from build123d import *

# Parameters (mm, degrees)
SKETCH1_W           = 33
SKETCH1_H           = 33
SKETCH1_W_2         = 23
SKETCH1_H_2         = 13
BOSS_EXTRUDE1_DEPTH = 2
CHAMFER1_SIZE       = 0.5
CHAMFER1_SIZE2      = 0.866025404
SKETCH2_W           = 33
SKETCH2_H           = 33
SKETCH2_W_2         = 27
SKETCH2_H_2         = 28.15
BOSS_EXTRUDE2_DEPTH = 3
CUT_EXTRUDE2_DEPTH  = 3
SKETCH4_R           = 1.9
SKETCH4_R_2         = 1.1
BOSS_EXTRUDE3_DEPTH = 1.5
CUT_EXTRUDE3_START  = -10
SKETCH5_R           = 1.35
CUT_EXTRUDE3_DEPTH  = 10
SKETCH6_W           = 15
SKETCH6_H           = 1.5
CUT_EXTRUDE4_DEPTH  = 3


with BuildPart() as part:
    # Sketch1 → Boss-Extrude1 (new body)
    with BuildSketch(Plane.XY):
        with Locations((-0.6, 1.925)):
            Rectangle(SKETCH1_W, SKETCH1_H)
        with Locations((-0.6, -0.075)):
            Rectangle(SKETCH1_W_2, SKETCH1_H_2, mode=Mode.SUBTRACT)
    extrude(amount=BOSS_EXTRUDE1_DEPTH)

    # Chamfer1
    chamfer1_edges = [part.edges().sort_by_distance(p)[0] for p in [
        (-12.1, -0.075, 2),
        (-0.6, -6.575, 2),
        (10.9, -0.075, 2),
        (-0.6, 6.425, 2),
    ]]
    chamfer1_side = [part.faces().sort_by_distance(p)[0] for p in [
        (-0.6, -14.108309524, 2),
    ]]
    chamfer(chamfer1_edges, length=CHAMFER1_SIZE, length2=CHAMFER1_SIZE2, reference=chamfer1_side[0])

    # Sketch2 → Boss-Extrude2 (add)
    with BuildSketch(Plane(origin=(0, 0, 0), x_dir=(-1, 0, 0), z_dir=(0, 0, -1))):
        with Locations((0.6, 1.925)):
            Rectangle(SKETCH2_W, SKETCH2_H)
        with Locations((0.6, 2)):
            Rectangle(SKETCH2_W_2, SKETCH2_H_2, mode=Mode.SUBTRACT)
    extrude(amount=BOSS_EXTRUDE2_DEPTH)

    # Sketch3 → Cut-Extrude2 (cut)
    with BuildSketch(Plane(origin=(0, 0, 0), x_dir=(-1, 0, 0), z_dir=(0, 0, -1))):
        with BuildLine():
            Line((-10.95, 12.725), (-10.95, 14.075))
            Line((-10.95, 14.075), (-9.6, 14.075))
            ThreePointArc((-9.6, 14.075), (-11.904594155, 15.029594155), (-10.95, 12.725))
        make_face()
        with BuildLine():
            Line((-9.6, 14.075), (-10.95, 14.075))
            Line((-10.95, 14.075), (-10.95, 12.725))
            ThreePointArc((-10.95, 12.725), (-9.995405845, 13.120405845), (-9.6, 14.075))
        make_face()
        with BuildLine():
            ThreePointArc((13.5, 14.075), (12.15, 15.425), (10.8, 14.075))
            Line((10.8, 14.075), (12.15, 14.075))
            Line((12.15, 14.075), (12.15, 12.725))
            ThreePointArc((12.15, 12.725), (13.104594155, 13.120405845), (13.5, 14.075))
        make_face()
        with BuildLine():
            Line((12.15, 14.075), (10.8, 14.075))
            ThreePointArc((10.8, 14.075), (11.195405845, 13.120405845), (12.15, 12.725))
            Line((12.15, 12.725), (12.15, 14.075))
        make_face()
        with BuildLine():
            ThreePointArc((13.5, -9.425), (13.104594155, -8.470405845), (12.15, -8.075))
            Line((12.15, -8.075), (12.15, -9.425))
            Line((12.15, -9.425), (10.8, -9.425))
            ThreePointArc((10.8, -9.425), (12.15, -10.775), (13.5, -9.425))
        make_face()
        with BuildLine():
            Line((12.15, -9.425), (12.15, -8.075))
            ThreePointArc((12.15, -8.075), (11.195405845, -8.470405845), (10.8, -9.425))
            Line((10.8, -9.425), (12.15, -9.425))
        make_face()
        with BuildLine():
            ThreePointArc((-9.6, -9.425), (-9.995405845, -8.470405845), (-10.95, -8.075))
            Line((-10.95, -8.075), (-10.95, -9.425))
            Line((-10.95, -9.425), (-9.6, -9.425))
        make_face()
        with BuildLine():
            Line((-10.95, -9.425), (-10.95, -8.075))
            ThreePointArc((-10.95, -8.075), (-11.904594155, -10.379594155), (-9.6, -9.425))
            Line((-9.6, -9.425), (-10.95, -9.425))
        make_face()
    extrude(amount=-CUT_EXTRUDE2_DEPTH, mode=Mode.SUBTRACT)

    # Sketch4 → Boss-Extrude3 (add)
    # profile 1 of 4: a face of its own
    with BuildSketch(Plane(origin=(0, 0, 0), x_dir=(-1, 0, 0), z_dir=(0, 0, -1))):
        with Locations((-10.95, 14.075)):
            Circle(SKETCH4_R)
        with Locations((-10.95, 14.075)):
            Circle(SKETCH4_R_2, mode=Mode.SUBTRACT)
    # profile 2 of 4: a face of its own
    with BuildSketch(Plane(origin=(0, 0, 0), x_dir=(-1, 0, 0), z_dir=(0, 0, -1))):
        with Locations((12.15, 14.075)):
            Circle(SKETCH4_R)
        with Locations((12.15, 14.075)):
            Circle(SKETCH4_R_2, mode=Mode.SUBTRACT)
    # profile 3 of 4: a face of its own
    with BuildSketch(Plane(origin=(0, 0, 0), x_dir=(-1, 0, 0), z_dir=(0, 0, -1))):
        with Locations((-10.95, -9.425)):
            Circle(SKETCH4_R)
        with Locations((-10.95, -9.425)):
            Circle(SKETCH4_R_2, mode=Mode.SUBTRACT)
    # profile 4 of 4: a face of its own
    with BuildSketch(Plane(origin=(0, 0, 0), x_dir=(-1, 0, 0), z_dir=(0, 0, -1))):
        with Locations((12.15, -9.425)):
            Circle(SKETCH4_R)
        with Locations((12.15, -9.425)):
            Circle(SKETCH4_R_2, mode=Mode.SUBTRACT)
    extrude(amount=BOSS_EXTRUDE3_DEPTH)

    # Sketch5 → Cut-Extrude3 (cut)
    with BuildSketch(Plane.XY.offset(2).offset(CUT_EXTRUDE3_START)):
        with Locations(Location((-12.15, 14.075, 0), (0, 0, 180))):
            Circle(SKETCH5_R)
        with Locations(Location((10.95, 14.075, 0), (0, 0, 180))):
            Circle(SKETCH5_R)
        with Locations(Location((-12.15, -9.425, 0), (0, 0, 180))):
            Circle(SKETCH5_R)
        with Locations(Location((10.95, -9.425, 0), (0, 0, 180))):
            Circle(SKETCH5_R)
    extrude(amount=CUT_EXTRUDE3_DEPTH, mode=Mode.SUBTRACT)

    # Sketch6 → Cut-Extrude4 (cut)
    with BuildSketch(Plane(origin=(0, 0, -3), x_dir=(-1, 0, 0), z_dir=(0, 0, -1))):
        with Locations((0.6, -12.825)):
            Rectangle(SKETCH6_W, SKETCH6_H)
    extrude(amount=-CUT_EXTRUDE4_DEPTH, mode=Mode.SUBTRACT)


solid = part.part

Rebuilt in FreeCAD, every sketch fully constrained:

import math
import FreeCAD as App
import Part
import Sketcher
from FreeCAD import Vector


def edges_at(feature, points):
    """Names of the edges that pass closest to the given points."""
    edges = feature.Shape.Edges
    near = lambda p: min(range(len(edges)), key=lambda i: edges[i].distToShape(Part.Vertex(*p))[0])
    return sorted({f"Edge{near(p) + 1}" for p in points})

doc = App.newDocument("Part")
body = doc.addObject("PartDesign::Body", "Body")

# Sketch on XY plane
sketch1 = body.newObject("Sketcher::SketchObject", "Sketch")
sketch1.AttachmentSupport = (doc.getObject("XY_Plane"), [""])
sketch1.MapMode = "FlatFace"
sketch1.addGeometry(Part.LineSegment(Vector(-17, 18, 0), Vector(-17, -15, 0)), False)
sketch1.addGeometry(Part.LineSegment(Vector(-17, -15, 0), Vector(16, -15, 0)), False)
sketch1.addGeometry(Part.LineSegment(Vector(16, -15, 0), Vector(16, 18, 0)), False)
sketch1.addGeometry(Part.LineSegment(Vector(16, 18, 0), Vector(-17, 18, 0)), False)
sketch1.addGeometry(Part.LineSegment(Vector(11, -7, 0), Vector(-12, -7, 0)), False)
sketch1.addGeometry(Part.LineSegment(Vector(-12, -7, 0), Vector(-12, 6, 0)), False)
sketch1.addGeometry(Part.LineSegment(Vector(-12, 6, 0), Vector(11, 6, 0)), False)
sketch1.addGeometry(Part.LineSegment(Vector(11, 6, 0), Vector(11, -7, 0)), False)
sketch1.addConstraint(Sketcher.Constraint("Coincident", 0, 2, 1, 1))
sketch1.addConstraint(Sketcher.Constraint("Coincident", 1, 2, 2, 1))
sketch1.addConstraint(Sketcher.Constraint("Coincident", 2, 2, 3, 1))
sketch1.addConstraint(Sketcher.Constraint("Coincident", 3, 2, 0, 1))
sketch1.addConstraint(Sketcher.Constraint("Coincident", 4, 2, 5, 1))
sketch1.addConstraint(Sketcher.Constraint("Coincident", 5, 2, 6, 1))
sketch1.addConstraint(Sketcher.Constraint("Coincident", 6, 2, 7, 1))
sketch1.addConstraint(Sketcher.Constraint("Coincident", 7, 2, 4, 1))
sketch1.addConstraint(Sketcher.Constraint("Vertical", 0))
sketch1.addConstraint(Sketcher.Constraint("Horizontal", 1))
sketch1.addConstraint(Sketcher.Constraint("Vertical", 2))
sketch1.addConstraint(Sketcher.Constraint("Horizontal", 3))
sketch1.addConstraint(Sketcher.Constraint("Horizontal", 4))
sketch1.addConstraint(Sketcher.Constraint("Vertical", 5))
sketch1.addConstraint(Sketcher.Constraint("Horizontal", 6))
sketch1.addConstraint(Sketcher.Constraint("Vertical", 7))
sketch1.addConstraint(Sketcher.Constraint("Equal", 3, 0))
sketch1.addConstraint(Sketcher.Constraint("DistanceX", 1, 1, 1, 2, 33.0))
sketch1.addConstraint(Sketcher.Constraint("DistanceX", 4, 2, 4, 1, 23.0))
sketch1.addConstraint(Sketcher.Constraint("DistanceY", 5, 1, 5, 2, 13.0))
sketch1.addConstraint(Sketcher.Constraint("DistanceX", 0, 2, 4, 2, 5.0))
sketch1.addConstraint(Sketcher.Constraint("DistanceY", 0, 2, 4, 2, 8.0))
sketch1.addConstraint(Sketcher.Constraint("DistanceX", 0, 2, -1, 1, 17.1))
sketch1.addConstraint(Sketcher.Constraint("DistanceY", 0, 2, -1, 1, 14.575))
pad1 = body.newObject("PartDesign::Pad", "Pad")
pad1.Profile = sketch1
pad1.Length = 2
doc.recompute()

chamfer = body.newObject("PartDesign::Chamfer", "Chamfer")
chamfer.Base = (pad1, edges_at(pad1, [
    (-12.1, -0.075, 2),
    (-0.6, -6.575, 2),
    (10.9, -0.075, 2),
    (-0.6, 6.425, 2),
]))
chamfer.ChamferType = "Two distances"
chamfer.Size = 0.5
chamfer.Size2 = 0.866025
chamfer.FlipDirection = True

# Sketch on XY plane
sketch2 = body.newObject("Sketcher::SketchObject", "Sketch001")
sketch2.AttachmentSupport = (doc.getObject("XY_Plane"), [""])
sketch2.MapMode = "FlatFace"
sketch2.addGeometry(Part.LineSegment(Vector(16, 18, 0), Vector(16, -15, 0)), False)
sketch2.addGeometry(Part.LineSegment(Vector(16, -15, 0), Vector(-17, -15, 0)), False)
sketch2.addGeometry(Part.LineSegment(Vector(-17, -15, 0), Vector(-17, 18, 0)), False)
sketch2.addGeometry(Part.LineSegment(Vector(-17, 18, 0), Vector(16, 18, 0)), False)
sketch2.addGeometry(Part.LineSegment(Vector(-14, -12, 0), Vector(13, -12, 0)), False)
sketch2.addGeometry(Part.LineSegment(Vector(13, -12, 0), Vector(13, 16, 0)), False)
sketch2.addGeometry(Part.LineSegment(Vector(13, 16, 0), Vector(-14, 16, 0)), False)
sketch2.addGeometry(Part.LineSegment(Vector(-14, 16, 0), Vector(-14, -12, 0)), False)
sketch2.addConstraint(Sketcher.Constraint("Coincident", 0, 2, 1, 1))
sketch2.addConstraint(Sketcher.Constraint("Coincident", 1, 2, 2, 1))
sketch2.addConstraint(Sketcher.Constraint("Coincident", 2, 2, 3, 1))
sketch2.addConstraint(Sketcher.Constraint("Coincident", 3, 2, 0, 1))
sketch2.addConstraint(Sketcher.Constraint("Coincident", 4, 2, 5, 1))
sketch2.addConstraint(Sketcher.Constraint("Coincident", 5, 2, 6, 1))
sketch2.addConstraint(Sketcher.Constraint("Coincident", 6, 2, 7, 1))
sketch2.addConstraint(Sketcher.Constraint("Coincident", 7, 2, 4, 1))
sketch2.addConstraint(Sketcher.Constraint("Vertical", 0))
sketch2.addConstraint(Sketcher.Constraint("Horizontal", 1))
sketch2.addConstraint(Sketcher.Constraint("Vertical", 2))
sketch2.addConstraint(Sketcher.Constraint("Horizontal", 3))
sketch2.addConstraint(Sketcher.Constraint("Horizontal", 4))
sketch2.addConstraint(Sketcher.Constraint("Vertical", 5))
sketch2.addConstraint(Sketcher.Constraint("Horizontal", 6))
sketch2.addConstraint(Sketcher.Constraint("Vertical", 7))
sketch2.addConstraint(Sketcher.Constraint("Equal", 3, 0))
sketch2.addConstraint(Sketcher.Constraint("DistanceX", 1, 2, 1, 1, 33.0))
sketch2.addConstraint(Sketcher.Constraint("DistanceX", 4, 1, 4, 2, 27.0))
sketch2.addConstraint(Sketcher.Constraint("DistanceX", 4, 2, 0, 2, 3.0))
sketch2.addConstraint(Sketcher.Constraint("DistanceY", 5, 1, 5, 2, 28.15))
sketch2.addConstraint(Sketcher.Constraint("DistanceX", -1, 1, 0, 2, 15.9))
sketch2.addConstraint(Sketcher.Constraint("DistanceY", 0, 2, 4, 2, 2.5))
sketch2.addConstraint(Sketcher.Constraint("DistanceY", 0, 2, -1, 1, 14.575))
pad2 = body.newObject("PartDesign::Pad", "Pad001")
pad2.Profile = sketch2
pad2.Length = 3
pad2.Reversed = True

# Sketch on XY plane
sketch3 = body.newObject("Sketcher::SketchObject", "Sketch002")
sketch3.AttachmentSupport = (doc.getObject("XY_Plane"), [""])
sketch3.MapMode = "FlatFace"
sketch3.addGeometry(Part.ArcOfCircle(Part.Circle(Vector(10.9, 14.1, 0), Vector(0, 0, 1), 1.4), math.radians(-90), math.radians(180)), False)
sketch3.addGeometry(Part.ArcOfCircle(Part.Circle(Vector(10.9, 14.1, 0), Vector(0, 0, 1), 1.3), math.radians(180), math.radians(270)), False)
sketch3.addGeometry(Part.ArcOfCircle(Part.Circle(Vector(-12.2, 14.1, 0), Vector(0, 0, 1), 1.4), math.radians(0), math.radians(180)), False)
sketch3.addGeometry(Part.ArcOfCircle(Part.Circle(Vector(-12.1, 14.1, 0), Vector(0, 0, 1), 1.3), math.radians(-90), math.radians(0)), False)
sketch3.addGeometry(Part.ArcOfCircle(Part.Circle(Vector(-12.2, 14.1, 0), Vector(0, 0, 1), 1.3), math.radians(180), math.radians(270)), False)
sketch3.addGeometry(Part.ArcOfCircle(Part.Circle(Vector(-12.2, -9.4, 0), Vector(0, 0, 1), 1.3), math.radians(90), math.radians(180)), False)
sketch3.addGeometry(Part.ArcOfCircle(Part.Circle(Vector(-12.1, -9.4, 0), Vector(0, 0, 1), 1.3), math.radians(0), math.radians(90)), False)
sketch3.addGeometry(Part.ArcOfCircle(Part.Circle(Vector(-12.2, -9.4, 0), Vector(0, 0, 1), 1.4), math.radians(180), math.radians(360)), False)
sketch3.addGeometry(Part.ArcOfCircle(Part.Circle(Vector(10.9, -9.4, 0), Vector(0, 0, 1), 1.3), math.radians(90), math.radians(180)), False)
sketch3.addGeometry(Part.ArcOfCircle(Part.Circle(Vector(10.9, -9.4, 0), Vector(0, 0, 1), 1.4), math.radians(180), math.radians(450)), False)
sketch3.addConstraint(Sketcher.Constraint("Tangent", 0, 1, 1, 2))
sketch3.addConstraint(Sketcher.Constraint("Coincident", 1, 1, 0, 2))
sketch3.addConstraint(Sketcher.Constraint("Tangent", 2, 1, 3, 2))
sketch3.addConstraint(Sketcher.Constraint("Tangent", 3, 1, 4, 2))
sketch3.addConstraint(Sketcher.Constraint("Tangent", 4, 1, 2, 2))
sketch3.addConstraint(Sketcher.Constraint("Tangent", 5, 1, 6, 2))
sketch3.addConstraint(Sketcher.Constraint("Tangent", 6, 1, 7, 2))
sketch3.addConstraint(Sketcher.Constraint("Tangent", 7, 1, 5, 2))
sketch3.addConstraint(Sketcher.Constraint("Tangent", 8, 1, 9, 2))
sketch3.addConstraint(Sketcher.Constraint("Coincident", 9, 1, 8, 2))
sketch3.addConstraint(Sketcher.Constraint("Equal", 1, 2))
sketch3.addConstraint(Sketcher.Constraint("Equal", 4, 5))
sketch3.addConstraint(Sketcher.Constraint("Equal", 7, 8))
sketch3.addConstraint(Sketcher.Constraint("Horizontal", 1, 3, 2, 3))
sketch3.addConstraint(Sketcher.Constraint("Horizontal", 7, 3, 8, 3))
sketch3.addConstraint(Sketcher.Constraint("Horizontal", 4, 3, 1, 1))
sketch3.addConstraint(Sketcher.Constraint("Horizontal", 1, 1, 2, 1))
sketch3.addConstraint(Sketcher.Constraint("Horizontal", 2, 1, 4, 1))
sketch3.addConstraint(Sketcher.Constraint("Horizontal", 9, 3, 6, 1))
sketch3.addConstraint(Sketcher.Constraint("Horizontal", 6, 1, 7, 1))
sketch3.addConstraint(Sketcher.Constraint("Horizontal", 7, 1, 9, 1))
sketch3.addConstraint(Sketcher.Constraint("Vertical", 4, 3, 5, 3))
sketch3.addConstraint(Sketcher.Constraint("Vertical", 1, 3, 8, 3))
sketch3.addConstraint(Sketcher.Constraint("Vertical", 9, 3, 0, 1))
sketch3.addConstraint(Sketcher.Constraint("Vertical", 7, 3, 3, 1))
sketch3.addConstraint(Sketcher.Constraint("Vertical", 3, 1, 5, 1))
sketch3.addConstraint(Sketcher.Constraint("Vertical", 0, 1, 8, 1))
sketch3.addConstraint(Sketcher.Constraint("Radius", 0, 1.35))
sketch3.addConstraint(Sketcher.Constraint("DistanceX", -1, 1, 1, 1, 9.6))
sketch3.addConstraint(Sketcher.Constraint("DistanceX", 2, 1, -1, 1, 10.8))
sketch3.addConstraint(Sketcher.Constraint("DistanceY", 5, 3, 3, 3, 23.5))
sketch3.addConstraint(Sketcher.Constraint("DistanceY", -1, 1, 0, 3, 14.075))
pocket1 = body.newObject("PartDesign::Pocket", "Pocket")
pocket1.Profile = sketch3
pocket1.Length = 3
pocket1.Reversed = True

# Sketch on XY plane
sketch4 = body.newObject("Sketcher::SketchObject", "Sketch003")
sketch4.AttachmentSupport = (doc.getObject("XY_Plane"), [""])
sketch4.MapMode = "FlatFace"
sketch4.addGeometry(Part.Circle(Vector(10.9, 14.1, 0), Vector(0, 0, 1), 1.9), False)
sketch4.addGeometry(Part.Circle(Vector(10.9, 14.1, 0), Vector(0, 0, 1), 1.1), False)
sketch4.addGeometry(Part.Circle(Vector(-12.2, 14.1, 0), Vector(0, 0, 1), 1.9), False)
sketch4.addGeometry(Part.Circle(Vector(-12.2, 14.1, 0), Vector(0, 0, 1), 1.1), False)
sketch4.addGeometry(Part.Circle(Vector(10.9, -9.4, 0), Vector(0, 0, 1), 1.9), False)
sketch4.addGeometry(Part.Circle(Vector(10.9, -9.4, 0), Vector(0, 0, 1), 1.1), False)
sketch4.addGeometry(Part.Circle(Vector(-12.2, -9.4, 0), Vector(0, 0, 1), 1.9), False)
sketch4.addGeometry(Part.Circle(Vector(-12.2, -9.4, 0), Vector(0, 0, 1), 1.1), False)
sketch4.addConstraint(Sketcher.Constraint("Coincident", 1, 3, 0, 3))
sketch4.addConstraint(Sketcher.Constraint("Coincident", 3, 3, 2, 3))
sketch4.addConstraint(Sketcher.Constraint("Coincident", 5, 3, 4, 3))
sketch4.addConstraint(Sketcher.Constraint("Coincident", 7, 3, 6, 3))
sketch4.addConstraint(Sketcher.Constraint("Equal", 0, 2))
sketch4.addConstraint(Sketcher.Constraint("Equal", 1, 3))
sketch4.addConstraint(Sketcher.Constraint("Equal", 2, 4))
sketch4.addConstraint(Sketcher.Constraint("Equal", 3, 5))
sketch4.addConstraint(Sketcher.Constraint("Equal", 4, 6))
sketch4.addConstraint(Sketcher.Constraint("Equal", 5, 7))
sketch4.addConstraint(Sketcher.Constraint("Horizontal", 1, 3, 2, 3))
sketch4.addConstraint(Sketcher.Constraint("Horizontal", 5, 3, 6, 3))
sketch4.addConstraint(Sketcher.Constraint("Vertical", 1, 3, 4, 3))
sketch4.addConstraint(Sketcher.Constraint("Vertical", 3, 3, 6, 3))
sketch4.addConstraint(Sketcher.Constraint("Diameter", 0, 3.8))
sketch4.addConstraint(Sketcher.Constraint("Diameter", 1, 2.2))
sketch4.addConstraint(Sketcher.Constraint("DistanceX", 2, 3, 0, 3, 23.1))
sketch4.addConstraint(Sketcher.Constraint("DistanceY", 4, 3, 0, 3, 23.5))
sketch4.addConstraint(Sketcher.Constraint("DistanceX", -1, 1, 0, 3, 10.95))
sketch4.addConstraint(Sketcher.Constraint("DistanceY", -1, 1, 0, 3, 14.075))
pad3 = body.newObject("PartDesign::Pad", "Pad002")
pad3.Profile = sketch4
pad3.Length = 1.5
pad3.Reversed = True

# Sketch on XY plane
sketch5 = body.newObject("Sketcher::SketchObject", "Sketch004")
sketch5.AttachmentSupport = (doc.getObject("XY_Plane"), [""])
sketch5.MapMode = "FlatFace"
sketch5.AttachmentOffset = App.Placement(Vector(0, 0, -8), App.Rotation())
sketch5.addGeometry(Part.Circle(Vector(-12.2, 14.1, 0), Vector(0, 0, 1), 1.4), False)
sketch5.addGeometry(Part.Circle(Vector(10.9, 14.1, 0), Vector(0, 0, 1), 1.4), False)
sketch5.addGeometry(Part.Circle(Vector(-12.2, -9.4, 0), Vector(0, 0, 1), 1.4), False)
sketch5.addGeometry(Part.Circle(Vector(10.9, -9.4, 0), Vector(0, 0, 1), 1.4), False)
sketch5.addConstraint(Sketcher.Constraint("Equal", 0, 1))
sketch5.addConstraint(Sketcher.Constraint("Equal", 1, 2))
sketch5.addConstraint(Sketcher.Constraint("Equal", 2, 3))
sketch5.addConstraint(Sketcher.Constraint("Horizontal", 0, 3, 1, 3))
sketch5.addConstraint(Sketcher.Constraint("Horizontal", 2, 3, 3, 3))
sketch5.addConstraint(Sketcher.Constraint("Vertical", 0, 3, 2, 3))
sketch5.addConstraint(Sketcher.Constraint("Vertical", 1, 3, 3, 3))
sketch5.addConstraint(Sketcher.Constraint("Diameter", 0, 2.7))
sketch5.addConstraint(Sketcher.Constraint("DistanceX", 0, 3, 1, 3, 23.1))
sketch5.addConstraint(Sketcher.Constraint("DistanceY", 2, 3, 0, 3, 23.5))
sketch5.addConstraint(Sketcher.Constraint("DistanceX", 0, 3, -1, 1, 12.15))
sketch5.addConstraint(Sketcher.Constraint("DistanceY", -1, 1, 0, 3, 14.075))
pocket2 = body.newObject("PartDesign::Pocket", "Pocket001")
pocket2.Profile = sketch5
pocket2.Length = 10
pocket2.Reversed = True

# Sketch on XY plane
sketch6 = body.newObject("Sketcher::SketchObject", "Sketch005")
sketch6.AttachmentSupport = (doc.getObject("XY_Plane"), [""])
sketch6.MapMode = "FlatFace"
sketch6.AttachmentOffset = App.Placement(Vector(0, 0, -3), App.Rotation())
sketch6.addGeometry(Part.LineSegment(Vector(6.9, -12.1, 0), Vector(6.9, -13.6, 0)), False)
sketch6.addGeometry(Part.LineSegment(Vector(6.9, -13.6, 0), Vector(-8.1, -13.6, 0)), False)
sketch6.addGeometry(Part.LineSegment(Vector(-8.1, -13.6, 0), Vector(-8.1, -12.1, 0)), False)
sketch6.addGeometry(Part.LineSegment(Vector(-8.1, -12.1, 0), Vector(6.9, -12.1, 0)), False)
sketch6.addConstraint(Sketcher.Constraint("Coincident", 0, 2, 1, 1))
sketch6.addConstraint(Sketcher.Constraint("Coincident", 1, 2, 2, 1))
sketch6.addConstraint(Sketcher.Constraint("Coincident", 2, 2, 3, 1))
sketch6.addConstraint(Sketcher.Constraint("Coincident", 3, 2, 0, 1))
sketch6.addConstraint(Sketcher.Constraint("Vertical", 0))
sketch6.addConstraint(Sketcher.Constraint("Horizontal", 1))
sketch6.addConstraint(Sketcher.Constraint("Vertical", 2))
sketch6.addConstraint(Sketcher.Constraint("Horizontal", 3))
sketch6.addConstraint(Sketcher.Constraint("DistanceX", 1, 2, 1, 1, 15.0))
sketch6.addConstraint(Sketcher.Constraint("DistanceY", 0, 2, 0, 1, 1.5))
sketch6.addConstraint(Sketcher.Constraint("DistanceX", -1, 1, 0, 2, 6.9))
sketch6.addConstraint(Sketcher.Constraint("DistanceY", 0, 2, -1, 1, 13.575))
pocket3 = body.newObject("PartDesign::Pocket", "Pocket002")
pocket3.Profile = sketch6
pocket3.Length = 3
pocket3.Reversed = True

doc.recompute()
